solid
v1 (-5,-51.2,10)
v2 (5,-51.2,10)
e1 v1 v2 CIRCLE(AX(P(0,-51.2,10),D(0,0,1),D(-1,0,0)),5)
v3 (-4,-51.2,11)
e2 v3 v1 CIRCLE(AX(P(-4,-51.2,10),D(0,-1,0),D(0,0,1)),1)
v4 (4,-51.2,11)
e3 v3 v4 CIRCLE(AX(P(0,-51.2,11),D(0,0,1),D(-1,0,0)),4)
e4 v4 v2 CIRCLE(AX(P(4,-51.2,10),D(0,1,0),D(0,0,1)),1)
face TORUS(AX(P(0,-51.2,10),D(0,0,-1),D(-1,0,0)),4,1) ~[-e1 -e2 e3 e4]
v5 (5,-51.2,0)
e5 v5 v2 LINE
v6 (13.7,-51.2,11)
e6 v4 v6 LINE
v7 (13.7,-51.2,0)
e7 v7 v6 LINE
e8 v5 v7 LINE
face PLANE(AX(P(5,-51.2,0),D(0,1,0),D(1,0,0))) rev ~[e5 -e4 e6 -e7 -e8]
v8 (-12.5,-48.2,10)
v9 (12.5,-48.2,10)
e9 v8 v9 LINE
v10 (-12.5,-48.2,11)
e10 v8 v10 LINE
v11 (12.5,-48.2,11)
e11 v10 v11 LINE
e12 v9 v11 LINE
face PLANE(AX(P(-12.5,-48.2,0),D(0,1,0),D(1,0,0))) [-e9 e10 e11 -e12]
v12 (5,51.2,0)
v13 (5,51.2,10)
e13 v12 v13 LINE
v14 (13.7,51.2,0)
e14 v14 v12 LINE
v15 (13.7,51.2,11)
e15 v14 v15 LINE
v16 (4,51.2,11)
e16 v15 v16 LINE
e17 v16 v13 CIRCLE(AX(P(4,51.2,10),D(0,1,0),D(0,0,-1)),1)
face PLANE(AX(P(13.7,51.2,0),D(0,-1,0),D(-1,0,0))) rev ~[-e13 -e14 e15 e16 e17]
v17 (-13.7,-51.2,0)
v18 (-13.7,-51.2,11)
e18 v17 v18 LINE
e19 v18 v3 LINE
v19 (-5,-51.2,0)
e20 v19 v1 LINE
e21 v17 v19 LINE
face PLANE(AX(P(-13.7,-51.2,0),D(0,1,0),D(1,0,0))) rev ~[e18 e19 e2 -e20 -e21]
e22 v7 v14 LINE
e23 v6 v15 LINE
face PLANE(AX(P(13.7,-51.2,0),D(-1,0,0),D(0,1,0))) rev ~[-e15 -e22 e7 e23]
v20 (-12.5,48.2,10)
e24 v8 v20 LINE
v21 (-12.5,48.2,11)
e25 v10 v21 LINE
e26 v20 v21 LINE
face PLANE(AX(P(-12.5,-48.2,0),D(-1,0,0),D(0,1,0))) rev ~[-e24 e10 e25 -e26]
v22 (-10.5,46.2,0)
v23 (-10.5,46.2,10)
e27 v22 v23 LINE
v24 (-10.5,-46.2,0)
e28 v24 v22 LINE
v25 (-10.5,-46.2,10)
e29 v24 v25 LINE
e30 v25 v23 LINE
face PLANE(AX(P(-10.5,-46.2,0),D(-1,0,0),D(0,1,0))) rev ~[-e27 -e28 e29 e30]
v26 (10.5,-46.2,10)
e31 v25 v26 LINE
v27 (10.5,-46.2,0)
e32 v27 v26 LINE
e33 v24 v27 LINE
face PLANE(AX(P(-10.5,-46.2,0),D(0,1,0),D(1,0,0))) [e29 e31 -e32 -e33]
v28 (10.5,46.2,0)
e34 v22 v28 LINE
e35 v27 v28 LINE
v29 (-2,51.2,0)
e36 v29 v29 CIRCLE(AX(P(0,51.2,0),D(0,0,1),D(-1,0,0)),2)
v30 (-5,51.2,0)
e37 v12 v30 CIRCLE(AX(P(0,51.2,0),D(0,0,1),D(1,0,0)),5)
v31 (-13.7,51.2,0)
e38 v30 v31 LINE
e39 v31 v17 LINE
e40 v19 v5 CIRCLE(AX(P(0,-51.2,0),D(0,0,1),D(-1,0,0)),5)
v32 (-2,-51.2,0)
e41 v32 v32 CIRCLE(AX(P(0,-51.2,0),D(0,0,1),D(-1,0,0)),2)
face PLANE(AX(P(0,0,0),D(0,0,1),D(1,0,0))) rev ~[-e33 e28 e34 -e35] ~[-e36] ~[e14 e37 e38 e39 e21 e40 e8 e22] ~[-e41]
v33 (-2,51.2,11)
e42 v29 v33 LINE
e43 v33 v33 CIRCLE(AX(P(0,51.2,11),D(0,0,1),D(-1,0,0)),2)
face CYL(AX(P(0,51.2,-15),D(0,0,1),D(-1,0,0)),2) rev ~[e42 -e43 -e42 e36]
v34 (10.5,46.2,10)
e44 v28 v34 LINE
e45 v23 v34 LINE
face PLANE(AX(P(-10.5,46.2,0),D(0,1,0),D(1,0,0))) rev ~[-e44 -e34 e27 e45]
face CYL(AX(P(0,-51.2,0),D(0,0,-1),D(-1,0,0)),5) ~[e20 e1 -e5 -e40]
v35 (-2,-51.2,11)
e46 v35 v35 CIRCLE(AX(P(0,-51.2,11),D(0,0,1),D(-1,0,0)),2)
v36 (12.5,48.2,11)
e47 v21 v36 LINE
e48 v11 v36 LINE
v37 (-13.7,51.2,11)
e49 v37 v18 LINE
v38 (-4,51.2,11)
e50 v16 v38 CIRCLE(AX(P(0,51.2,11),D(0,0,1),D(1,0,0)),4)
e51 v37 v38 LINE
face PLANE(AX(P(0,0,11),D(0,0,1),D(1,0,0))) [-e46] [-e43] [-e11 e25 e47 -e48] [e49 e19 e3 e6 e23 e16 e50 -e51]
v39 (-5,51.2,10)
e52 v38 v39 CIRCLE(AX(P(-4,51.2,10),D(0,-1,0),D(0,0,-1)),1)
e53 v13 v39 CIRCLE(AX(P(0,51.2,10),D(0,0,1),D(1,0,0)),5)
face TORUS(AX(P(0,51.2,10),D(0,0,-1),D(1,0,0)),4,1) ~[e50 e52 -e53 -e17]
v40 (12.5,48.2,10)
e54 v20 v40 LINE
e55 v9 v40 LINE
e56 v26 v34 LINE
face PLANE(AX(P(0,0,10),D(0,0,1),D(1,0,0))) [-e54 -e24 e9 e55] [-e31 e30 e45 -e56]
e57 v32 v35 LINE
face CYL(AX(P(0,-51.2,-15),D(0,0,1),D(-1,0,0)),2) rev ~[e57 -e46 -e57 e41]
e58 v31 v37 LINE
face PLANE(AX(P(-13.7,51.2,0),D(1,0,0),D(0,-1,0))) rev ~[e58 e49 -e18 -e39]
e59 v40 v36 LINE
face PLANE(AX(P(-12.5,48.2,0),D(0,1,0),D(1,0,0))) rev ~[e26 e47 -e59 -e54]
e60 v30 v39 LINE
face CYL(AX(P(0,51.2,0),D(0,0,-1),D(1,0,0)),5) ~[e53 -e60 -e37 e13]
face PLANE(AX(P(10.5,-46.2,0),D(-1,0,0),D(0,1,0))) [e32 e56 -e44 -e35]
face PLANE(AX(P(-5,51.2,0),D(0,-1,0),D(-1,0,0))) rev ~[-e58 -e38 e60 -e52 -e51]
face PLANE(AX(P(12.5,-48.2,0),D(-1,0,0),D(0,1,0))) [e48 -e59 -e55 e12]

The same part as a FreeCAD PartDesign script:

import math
import FreeCAD as App
import Part
import Sketcher

V = App.Vector


def edges_at(feature, points):
    """Names of the edges that pass closest to the given points."""
    edges = feature.Shape.Edges
    near = lambda p: min(range(len(edges)), key=lambda i: edges[i].distToShape(Part.Vertex(*p))[0])
    return sorted({f"Edge{near(p) + 1}" for p in points})

doc = App.newDocument("Part")
body = doc.addObject("PartDesign::Body", "Body")

# Sketch on XY plane
sketch1 = doc.addObject("Sketcher::SketchObject", "Sketch")
body.addObject(sketch1)
sketch1.AttachmentSupport = (doc.XY_Plane, [""])
sketch1.MapMode = "FlatFace"
sketch1.addGeometry(Part.LineSegment(V(-12.5, 48.2, 0), V(-12.5, -48.2, 0)), False)
sketch1.addGeometry(Part.LineSegment(V(-12.5, -48.2, 0), V(12.5, -48.2, 0)), False)
sketch1.addGeometry(Part.LineSegment(V(12.5, -48.2, 0), V(12.5, 48.2, 0)), False)
sketch1.addGeometry(Part.LineSegment(V(12.5, 48.2, 0), V(-12.5, 48.2, 0)), False)
sketch1.addGeometry(Part.LineSegment(V(10.5, -46.2, 0), V(-10.5, -46.2, 0)), False)
sketch1.addGeometry(Part.LineSegment(V(-10.5, -46.2, 0), V(-10.5, 46.2, 0)), False)
sketch1.addGeometry(Part.LineSegment(V(-10.5, 46.2, 0), V(10.5, 46.2, 0)), False)
sketch1.addGeometry(Part.LineSegment(V(10.5, 46.2, 0), V(10.5, -46.2, 0)), False)
sketch1.addConstraint(Sketcher.Constraint("Coincident", 0, 2, 1, 1))
sketch1.addConstraint(Sketcher.Constraint("Coincident", 1, 2, 2, 1))
sketch1.addConstraint(Sketcher.Constraint("Coincident", 2, 2, 3, 1))
sketch1.addConstraint(Sketcher.Constraint("Coincident", 3, 2, 0, 1))
sketch1.addConstraint(Sketcher.Constraint("Coincident", 4, 2, 5, 1))
sketch1.addConstraint(Sketcher.Constraint("Coincident", 5, 2, 6, 1))
sketch1.addConstraint(Sketcher.Constraint("Coincident", 6, 2, 7, 1))
sketch1.addConstraint(Sketcher.Constraint("Coincident", 7, 2, 4, 1))
sketch1.addConstraint(Sketcher.Constraint("Vertical", 0))
sketch1.addConstraint(Sketcher.Constraint("Horizontal", 1))
sketch1.addConstraint(Sketcher.Constraint("Vertical", 2))
sketch1.addConstraint(Sketcher.Constraint("Horizontal", 3))
sketch1.addConstraint(Sketcher.Constraint("Horizontal", 4))
sketch1.addConstraint(Sketcher.Constraint("Vertical", 5))
sketch1.addConstraint(Sketcher.Constraint("Horizontal", 6))
sketch1.addConstraint(Sketcher.Constraint("Vertical", 7))
sketch1.addConstraint(Sketcher.Constraint("Symmetric", 0, 2, 2, 2, -1, 1))
sketch1.addConstraint(Sketcher.Constraint("Symmetric", 4, 2, 6, 2, -1, 1))
sketch1.addConstraint(Sketcher.Constraint("DistanceX", 1, 1, 1, 2, 25.0))
sketch1.addConstraint(Sketcher.Constraint("DistanceX", 4, 2, 4, 1, 21.0))
sketch1.addConstraint(Sketcher.Constraint("DistanceY", 0, 2, 0, 1, 96.4))
sketch1.addConstraint(Sketcher.Constraint("DistanceY", 5, 1, 5, 2, 92.4))
pad1 = doc.addObject("PartDesign::Pad", "Pad")
body.addObject(pad1)
pad1.Profile = sketch1
pad1.Length = 10

# Sketch on XY plane
sketch2 = doc.addObject("Sketcher::SketchObject", "Sketch001")
body.addObject(sketch2)
sketch2.AttachmentSupport = (doc.XY_Plane, [""])
sketch2.MapMode = "FlatFace"
sketch2.addGeometry(Part.LineSegment(V(-13.7, 51.2, 0), V(-13.7, -51.2, 0)), False)
sketch2.addGeometry(Part.LineSegment(V(-13.7, -51.2, 0), V(-5, -51.2, 0)), False)
sketch2.addGeometry(Part.ArcOfCircle(Part.Circle(V(0, -51.2, 0), V(0, 0, 1), 5), math.radians(180), math.radians(360)), False)
sketch2.addGeometry(Part.LineSegment(V(5, -51.2, 0), V(13.7, -51.2, 0)), False)
sketch2.addGeometry(Part.LineSegment(V(13.7, -51.2, 0), V(13.7, 51.2, 0)), False)
sketch2.addGeometry(Part.LineSegment(V(13.7, 51.2, 0), V(5, 51.2, 0)), False)
sketch2.addGeometry(Part.ArcOfCircle(Part.Circle(V(0, 51.2, 0), V(0, 0, 1), 5), math.radians(0), math.radians(180)), False)
sketch2.addGeometry(Part.LineSegment(V(-5, 51.2, 0), V(-13.7, 51.2, 0)), False)
sketch2.addGeometry(Part.LineSegment(V(12.5, -48.2, 0), V(-12.5, -48.2, 0)), False)
sketch2.addGeometry(Part.LineSegment(V(-12.5, -48.2, 0), V(-12.5, 48.2, 0)), False)
sketch2.addGeometry(Part.LineSegment(V(-12.5, 48.2, 0), V(12.5, 48.2, 0)), False)
sketch2.addGeometry(Part.LineSegment(V(12.5, 48.2, 0), V(12.5, -48.2, 0)), False)
sketch2.addConstraint(Sketcher.Constraint("Coincident", 0, 2, 1, 1))
sketch2.addConstraint(Sketcher.Constraint("Coincident", 1, 2, 2, 1))
sketch2.addConstraint(Sketcher.Constraint("Coincident", 2, 2, 3, 1))
sketch2.addConstraint(Sketcher.Constraint("Coincident", 3, 2, 4, 1))
sketch2.addConstraint(Sketcher.Constraint("Coincident", 4, 2, 5, 1))
sketch2.addConstraint(Sketcher.Constraint("Coincident", 5, 2, 6, 1))
sketch2.addConstraint(Sketcher.Constraint("Coincident", 6, 2, 7, 1))
sketch2.addConstraint(Sketcher.Constraint("Coincident", 7, 2, 0, 1))
sketch2.addConstraint(Sketcher.Constraint("Coincident", 8, 2, 9, 1))
sketch2.addConstraint(Sketcher.Constraint("Coincident", 9, 2, 10, 1))
sketch2.addConstraint(Sketcher.Constraint("Coincident", 10, 2, 11, 1))
sketch2.addConstraint(Sketcher.Constraint("Coincident", 11, 2, 8, 1))
sketch2.addConstraint(Sketcher.Constraint("Vertical", 0))
sketch2.addConstraint(Sketcher.Constraint("Horizontal", 1))
sketch2.addConstraint(Sketcher.Constraint("Horizontal", 3))
sketch2.addConstraint(Sketcher.Constraint("Vertical", 4))
sketch2.addConstraint(Sketcher.Constraint("Horizontal", 5))
sketch2.addConstraint(Sketcher.Constraint("Horizontal", 7))
sketch2.addConstraint(Sketcher.Constraint("Horizontal", 8))
sketch2.addConstraint(Sketcher.Constraint("Vertical", 9))
sketch2.addConstraint(Sketcher.Constraint("Horizontal", 10))
sketch2.addConstraint(Sketcher.Constraint("Vertical", 11))
sketch2.addConstraint(Sketcher.Constraint("Equal", 2, 6))
sketch2.addConstraint(Sketcher.Constraint("Symmetric", 2, 3, 6, 3, -1, 1))
sketch2.addConstraint(Sketcher.Constraint("Symmetric", 0, 2, 4, 2, -1, 1))
sketch2.addConstraint(Sketcher.Constraint("Symmetric", 8, 2, 10, 2, -1, 1))
sketch2.addConstraint(Sketcher.Constraint("Symmetric", 1, 2, 2, 2, -2))
sketch2.addConstraint(Sketcher.Constraint("Horizontal", 2, 3, 0, 2))
sketch2.addConstraint(Sketcher.Constraint("Horizontal", 5, 2, 6, 2))
sketch2.addConstraint(Sketcher.Constraint("Radius", 2, 5.0))
sketch2.addConstraint(Sketcher.Constraint("DistanceX", 8, 2, 8, 1, 25.0))
sketch2.addConstraint(Sketcher.Constraint("DistanceX", 1, 1, 1, 2, 8.7))
sketch2.addConstraint(Sketcher.Constraint("DistanceY", 0, 2, 0, 1, 102.4))
sketch2.addConstraint(Sketcher.Constraint("DistanceY", 9, 1, 9, 2, 96.4))
pad2 = doc.addObject("PartDesign::Pad", "Pad001")
body.addObject(pad2)
pad2.Profile = sketch2
pad2.Length = 11

# Sketch on XY plane
sketch3 = doc.addObject("Sketcher::SketchObject", "Sketch002")
body.addObject(sketch3)
sketch3.AttachmentSupport = (doc.XY_Plane, [""])
sketch3.MapMode = "FlatFace"
sketch3.addGeometry(Part.Circle(V(0, -51.2, 0), V(0, 0, 1), 2), False)
sketch3.addGeometry(Part.Circle(V(0, 51.2, 0), V(0, 0, 1), 2), False)
sketch3.addConstraint(Sketcher.Constraint("Equal", 0, 1))
sketch3.addConstraint(Sketcher.Constraint("Symmetric", 0, 3, 1, 3, -1, 1))
sketch3.addConstraint(Sketcher.Constraint("PointOnObject", 0, 3, -2))
sketch3.addConstraint(Sketcher.Constraint("Diameter", 0, 4.0))
sketch3.addConstraint(Sketcher.Constraint("DistanceY", 0, 3, -1, 1, 51.2))
doc.recompute()
hole = doc.addObject("PartDesign::Hole", "Hole")
body.addObject(hole)
hole.Profile = sketch3
hole.ThreadType = "None"
hole.Diameter = 4
hole.DepthType = "Dimension"
hole.Depth = 15
hole.DrillPoint = "Flat"
hole.Reversed = True
doc.recompute()

fillet = doc.addObject("PartDesign::Fillet", "Fillet")
body.addObject(fillet)
fillet.Base = (hole, edges_at(hole, [(0, 56.2, 11), (0, -56.2, 11)]))
fillet.Radius = 1

doc.recompute()
